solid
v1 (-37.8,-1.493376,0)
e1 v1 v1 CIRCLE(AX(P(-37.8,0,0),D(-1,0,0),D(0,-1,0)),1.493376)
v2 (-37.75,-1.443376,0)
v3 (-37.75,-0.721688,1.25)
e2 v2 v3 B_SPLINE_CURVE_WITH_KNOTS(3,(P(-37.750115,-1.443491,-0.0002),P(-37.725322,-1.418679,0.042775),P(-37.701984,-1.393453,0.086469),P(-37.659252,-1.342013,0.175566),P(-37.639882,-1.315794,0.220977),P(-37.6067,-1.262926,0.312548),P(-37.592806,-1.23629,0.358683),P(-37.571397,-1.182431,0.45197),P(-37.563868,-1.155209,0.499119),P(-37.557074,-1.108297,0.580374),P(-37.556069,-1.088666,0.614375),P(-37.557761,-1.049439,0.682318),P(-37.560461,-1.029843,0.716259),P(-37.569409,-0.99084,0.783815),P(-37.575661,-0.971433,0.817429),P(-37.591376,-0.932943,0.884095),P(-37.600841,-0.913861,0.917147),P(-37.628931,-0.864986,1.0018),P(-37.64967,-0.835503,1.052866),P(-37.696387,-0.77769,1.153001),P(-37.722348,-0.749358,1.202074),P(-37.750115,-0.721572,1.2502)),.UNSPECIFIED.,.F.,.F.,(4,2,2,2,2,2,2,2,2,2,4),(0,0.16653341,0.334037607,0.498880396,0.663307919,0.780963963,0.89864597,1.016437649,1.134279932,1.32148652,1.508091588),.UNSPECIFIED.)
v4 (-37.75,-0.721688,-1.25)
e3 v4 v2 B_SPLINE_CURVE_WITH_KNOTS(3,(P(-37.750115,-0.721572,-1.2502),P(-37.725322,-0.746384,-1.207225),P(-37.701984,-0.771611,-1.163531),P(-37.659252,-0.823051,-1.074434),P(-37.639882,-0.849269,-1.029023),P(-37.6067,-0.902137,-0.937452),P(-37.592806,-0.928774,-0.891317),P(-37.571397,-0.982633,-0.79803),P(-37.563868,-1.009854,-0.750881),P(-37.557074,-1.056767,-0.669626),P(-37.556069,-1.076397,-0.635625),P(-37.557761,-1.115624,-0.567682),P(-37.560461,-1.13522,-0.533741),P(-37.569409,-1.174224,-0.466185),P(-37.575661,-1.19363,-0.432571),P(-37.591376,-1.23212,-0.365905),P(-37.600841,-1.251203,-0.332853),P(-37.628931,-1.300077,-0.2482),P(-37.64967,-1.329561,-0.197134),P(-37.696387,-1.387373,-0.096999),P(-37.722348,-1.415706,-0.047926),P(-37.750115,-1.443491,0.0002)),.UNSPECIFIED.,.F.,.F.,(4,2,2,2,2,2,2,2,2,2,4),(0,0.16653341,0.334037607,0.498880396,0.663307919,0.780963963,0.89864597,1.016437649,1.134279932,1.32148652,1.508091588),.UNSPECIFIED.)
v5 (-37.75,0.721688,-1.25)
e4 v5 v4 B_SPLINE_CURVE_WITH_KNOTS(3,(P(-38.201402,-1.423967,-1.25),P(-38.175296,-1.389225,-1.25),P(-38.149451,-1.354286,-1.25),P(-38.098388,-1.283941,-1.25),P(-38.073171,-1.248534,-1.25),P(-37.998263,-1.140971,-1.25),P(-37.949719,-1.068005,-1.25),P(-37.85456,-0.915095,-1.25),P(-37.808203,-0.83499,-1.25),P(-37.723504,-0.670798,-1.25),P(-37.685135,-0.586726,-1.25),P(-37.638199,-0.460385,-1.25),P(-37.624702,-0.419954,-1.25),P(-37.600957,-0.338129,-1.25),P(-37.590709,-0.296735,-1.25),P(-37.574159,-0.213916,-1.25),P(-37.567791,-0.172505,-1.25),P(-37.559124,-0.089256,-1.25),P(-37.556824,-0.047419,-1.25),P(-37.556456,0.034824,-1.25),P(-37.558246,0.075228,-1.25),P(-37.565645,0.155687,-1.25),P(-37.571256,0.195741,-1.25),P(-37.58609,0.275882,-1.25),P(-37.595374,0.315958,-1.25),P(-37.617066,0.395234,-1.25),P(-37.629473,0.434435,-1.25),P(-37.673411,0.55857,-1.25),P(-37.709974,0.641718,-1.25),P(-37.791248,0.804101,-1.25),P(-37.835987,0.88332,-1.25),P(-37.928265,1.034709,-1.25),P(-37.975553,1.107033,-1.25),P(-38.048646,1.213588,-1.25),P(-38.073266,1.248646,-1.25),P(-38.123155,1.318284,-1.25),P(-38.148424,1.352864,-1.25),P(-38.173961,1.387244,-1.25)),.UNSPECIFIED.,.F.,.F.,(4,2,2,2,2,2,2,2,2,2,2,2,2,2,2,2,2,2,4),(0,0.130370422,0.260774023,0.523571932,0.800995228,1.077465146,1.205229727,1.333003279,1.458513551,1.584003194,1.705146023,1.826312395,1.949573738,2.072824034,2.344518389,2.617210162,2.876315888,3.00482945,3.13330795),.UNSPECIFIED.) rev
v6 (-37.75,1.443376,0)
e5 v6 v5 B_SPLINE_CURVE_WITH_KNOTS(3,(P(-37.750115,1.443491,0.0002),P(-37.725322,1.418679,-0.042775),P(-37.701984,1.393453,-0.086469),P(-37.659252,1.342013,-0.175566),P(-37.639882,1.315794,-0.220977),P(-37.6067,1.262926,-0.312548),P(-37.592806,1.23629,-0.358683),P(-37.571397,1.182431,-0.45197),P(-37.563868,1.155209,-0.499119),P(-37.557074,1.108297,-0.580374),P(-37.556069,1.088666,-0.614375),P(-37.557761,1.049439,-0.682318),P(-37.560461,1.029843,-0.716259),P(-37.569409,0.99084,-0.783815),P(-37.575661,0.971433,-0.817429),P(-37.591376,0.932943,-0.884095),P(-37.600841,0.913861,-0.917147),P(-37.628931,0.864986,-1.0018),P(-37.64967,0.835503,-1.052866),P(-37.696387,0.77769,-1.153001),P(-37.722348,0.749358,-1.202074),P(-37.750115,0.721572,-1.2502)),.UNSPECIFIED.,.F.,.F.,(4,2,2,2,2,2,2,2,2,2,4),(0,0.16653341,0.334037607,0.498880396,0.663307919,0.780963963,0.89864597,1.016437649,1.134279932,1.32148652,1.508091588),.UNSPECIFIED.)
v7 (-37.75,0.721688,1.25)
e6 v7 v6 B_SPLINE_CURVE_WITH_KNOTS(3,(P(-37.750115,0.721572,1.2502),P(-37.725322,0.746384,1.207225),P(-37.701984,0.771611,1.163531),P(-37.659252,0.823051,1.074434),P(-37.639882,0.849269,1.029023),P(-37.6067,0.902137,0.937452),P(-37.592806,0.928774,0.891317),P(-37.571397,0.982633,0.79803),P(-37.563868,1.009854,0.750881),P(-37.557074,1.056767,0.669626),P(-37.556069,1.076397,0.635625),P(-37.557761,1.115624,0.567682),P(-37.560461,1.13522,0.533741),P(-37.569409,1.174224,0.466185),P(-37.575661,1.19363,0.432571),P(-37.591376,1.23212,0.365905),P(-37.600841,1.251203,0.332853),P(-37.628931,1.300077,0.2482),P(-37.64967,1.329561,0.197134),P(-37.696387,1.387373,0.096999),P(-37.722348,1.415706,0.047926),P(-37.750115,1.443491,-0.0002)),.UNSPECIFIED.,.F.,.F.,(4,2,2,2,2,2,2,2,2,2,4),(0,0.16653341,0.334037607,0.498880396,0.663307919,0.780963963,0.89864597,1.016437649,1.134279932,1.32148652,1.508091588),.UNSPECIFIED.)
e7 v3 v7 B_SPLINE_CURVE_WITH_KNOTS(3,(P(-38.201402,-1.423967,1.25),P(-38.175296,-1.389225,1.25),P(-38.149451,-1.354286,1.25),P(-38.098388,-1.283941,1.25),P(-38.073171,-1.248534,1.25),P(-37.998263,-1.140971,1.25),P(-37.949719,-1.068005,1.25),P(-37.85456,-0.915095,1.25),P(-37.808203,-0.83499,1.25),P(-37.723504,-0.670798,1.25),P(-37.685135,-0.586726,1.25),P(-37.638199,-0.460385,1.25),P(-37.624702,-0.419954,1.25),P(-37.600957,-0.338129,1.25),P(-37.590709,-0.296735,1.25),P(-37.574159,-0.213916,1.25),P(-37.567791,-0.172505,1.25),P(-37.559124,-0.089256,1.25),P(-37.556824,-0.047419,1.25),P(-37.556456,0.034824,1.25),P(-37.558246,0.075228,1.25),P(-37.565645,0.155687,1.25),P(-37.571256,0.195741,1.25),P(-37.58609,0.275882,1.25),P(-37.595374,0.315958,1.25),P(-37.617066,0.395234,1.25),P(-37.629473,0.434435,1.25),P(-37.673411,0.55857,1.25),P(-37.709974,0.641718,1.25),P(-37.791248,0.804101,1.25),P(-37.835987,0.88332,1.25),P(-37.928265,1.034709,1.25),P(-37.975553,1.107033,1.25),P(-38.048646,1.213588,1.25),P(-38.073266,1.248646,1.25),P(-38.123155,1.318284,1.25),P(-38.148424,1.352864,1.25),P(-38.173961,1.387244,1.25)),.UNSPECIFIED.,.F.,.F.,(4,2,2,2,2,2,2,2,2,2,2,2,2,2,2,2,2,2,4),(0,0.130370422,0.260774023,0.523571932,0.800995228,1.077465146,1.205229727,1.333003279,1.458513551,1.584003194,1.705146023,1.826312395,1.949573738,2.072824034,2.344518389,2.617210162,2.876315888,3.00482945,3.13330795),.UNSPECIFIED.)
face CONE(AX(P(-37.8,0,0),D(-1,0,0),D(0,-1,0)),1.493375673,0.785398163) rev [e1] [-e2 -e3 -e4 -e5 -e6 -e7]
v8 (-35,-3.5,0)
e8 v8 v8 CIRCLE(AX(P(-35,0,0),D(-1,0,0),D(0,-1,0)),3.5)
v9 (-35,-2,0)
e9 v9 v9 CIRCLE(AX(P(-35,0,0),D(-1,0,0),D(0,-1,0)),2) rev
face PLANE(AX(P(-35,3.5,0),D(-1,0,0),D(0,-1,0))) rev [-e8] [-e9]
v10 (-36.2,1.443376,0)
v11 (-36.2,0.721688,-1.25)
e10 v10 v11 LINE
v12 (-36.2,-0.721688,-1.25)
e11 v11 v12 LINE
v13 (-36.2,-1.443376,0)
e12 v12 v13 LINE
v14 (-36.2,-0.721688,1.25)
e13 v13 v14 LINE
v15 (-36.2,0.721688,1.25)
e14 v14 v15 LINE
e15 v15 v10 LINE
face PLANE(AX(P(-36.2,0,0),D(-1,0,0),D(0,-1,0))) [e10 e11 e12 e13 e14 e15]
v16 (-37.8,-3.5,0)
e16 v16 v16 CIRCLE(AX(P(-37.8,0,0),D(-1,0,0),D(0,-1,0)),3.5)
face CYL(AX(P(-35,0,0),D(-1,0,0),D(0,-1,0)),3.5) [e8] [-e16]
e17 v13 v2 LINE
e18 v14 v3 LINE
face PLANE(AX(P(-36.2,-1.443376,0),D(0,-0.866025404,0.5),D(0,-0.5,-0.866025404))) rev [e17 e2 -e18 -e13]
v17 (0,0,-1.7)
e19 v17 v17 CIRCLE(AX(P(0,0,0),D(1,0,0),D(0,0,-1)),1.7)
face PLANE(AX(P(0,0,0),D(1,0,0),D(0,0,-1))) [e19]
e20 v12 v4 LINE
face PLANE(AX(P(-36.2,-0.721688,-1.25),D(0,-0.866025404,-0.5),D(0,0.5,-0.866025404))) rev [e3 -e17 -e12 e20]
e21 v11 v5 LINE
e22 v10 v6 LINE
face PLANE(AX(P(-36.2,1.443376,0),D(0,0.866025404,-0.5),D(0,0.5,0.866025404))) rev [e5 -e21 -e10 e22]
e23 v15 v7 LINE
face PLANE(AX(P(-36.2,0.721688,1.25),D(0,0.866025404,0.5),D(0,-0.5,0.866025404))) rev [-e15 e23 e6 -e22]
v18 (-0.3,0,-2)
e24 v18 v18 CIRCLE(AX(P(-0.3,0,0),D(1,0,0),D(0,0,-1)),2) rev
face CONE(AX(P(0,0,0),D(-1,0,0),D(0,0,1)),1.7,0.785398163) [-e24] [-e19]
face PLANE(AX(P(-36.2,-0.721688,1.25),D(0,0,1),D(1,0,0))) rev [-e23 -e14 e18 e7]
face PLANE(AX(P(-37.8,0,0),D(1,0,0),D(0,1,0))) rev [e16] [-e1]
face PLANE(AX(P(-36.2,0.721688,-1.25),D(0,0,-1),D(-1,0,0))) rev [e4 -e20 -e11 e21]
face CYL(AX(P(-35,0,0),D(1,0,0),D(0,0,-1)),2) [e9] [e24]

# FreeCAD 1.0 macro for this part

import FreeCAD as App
import Part
import Sketcher
from FreeCAD import Vector
Q = App.Units.Quantity


def edges_at(feature, points):
    """Names of the edges that pass closest to the given points."""
    edges = feature.Shape.Edges
    near = lambda p: min(range(len(edges)), key=lambda i: edges[i].distToShape(Part.Vertex(*p))[0])
    return sorted({f"Edge{near(p) + 1}" for p in points})

doc = App.newDocument("Part")
body = doc.addObject("PartDesign::Body", "Body")

# Sketch on YZ plane
sketch1 = doc.addObject("Sketcher::SketchObject", "Sketch")
body.addObject(sketch1)
sketch1.AttachmentSupport = (doc.YZ_Plane, [""])
sketch1.MapMode = "FlatFace"
sketch1.addGeometry(Part.Circle(Vector(0, 0, 0), Vector(0, 0, 1), 2), False)
sketch1.addConstraint([
    Sketcher.Constraint("Coincident", 0, 3, -1, 1),
    Sketcher.Constraint("Diameter", 0, 4.0),
])
pad1 = doc.addObject("PartDesign::Pad", "Pad")
body.addObject(pad1)
pad1.Profile = sketch1
pad1.Length = 35
pad1.Reversed = True
doc.recompute()

chamfer = doc.addObject("PartDesign::Chamfer", "Chamfer")
body.addObject(chamfer)
chamfer.Base = (pad1, edges_at(pad1, [(0, 0, 2)]))
chamfer.Size = 0.3

# Sketch on XY plane
sketch2 = doc.addObject("Sketcher::SketchObject", "Sketch001")
body.addObject(sketch2)
sketch2.AttachmentSupport = (doc.XY_Plane, [""])
sketch2.MapMode = "FlatFace"
sketch2.addGeometry([
    Part.LineSegment(Vector(-37.8, 3.5, 0), Vector(-37.8, 0, 0)),
    Part.LineSegment(Vector(-37.8, 0, 0), Vector(-35, 0, 0)),
    Part.LineSegment(Vector(-35, 0, 0), Vector(-35, 3.5, 0)),
    Part.LineSegment(Vector(-35, 3.5, 0), Vector(-37.8, 3.5, 0)),
], False)
sketch2.addConstraint([
    Sketcher.Constraint("Coincident", 0, 2, 1, 1),
    Sketcher.Constraint("Coincident", 1, 2, 2, 1),
    Sketcher.Constraint("Coincident", 2, 2, 3, 1),
    Sketcher.Constraint("Coincident", 3, 2, 0, 1),
    Sketcher.Constraint("Vertical", 0),
    Sketcher.Constraint("Horizontal", 1),
    Sketcher.Constraint("Vertical", 2),
    Sketcher.Constraint("Horizontal", 3),
    Sketcher.Constraint("PointOnObject", 0, 2, -1),
    Sketcher.Constraint("DistanceX", 1, 1, 1, 2, 2.8),
    Sketcher.Constraint("DistanceY", 0, 2, 0, 1, 3.5),
    Sketcher.Constraint("DistanceX", 1, 2, -1, 1, 35.0),
])
revolution = doc.addObject("PartDesign::Revolution", "Revolution")
body.addObject(revolution)
revolution.Profile = sketch2
revolution.ReferenceAxis = (sketch2, ["H_Axis"])
revolution.Angle = 360

# Sketch on YZ plane
sketch3 = doc.addObject("Sketcher::SketchObject", "Sketch002")
body.addObject(sketch3)
sketch3.AttachmentSupport = (doc.YZ_Plane, [""])
sketch3.MapMode = "FlatFace"
sketch3.AttachmentOffset = App.Placement(Vector(0, 0, -37.8), App.Rotation())
sketch3.addGeometry([
    Part.LineSegment(Vector(1.443376, 0, 0), Vector(0.721688, -1.25, 0)),  # 0
    Part.LineSegment(Vector(0.721688, -1.25, 0), Vector(-0.721688, -1.25, 0)),  # 1
    Part.LineSegment(Vector(-0.721688, -1.25, 0), Vector(-1.443376, 0, 0)),  # 2
    Part.LineSegment(Vector(-1.443376, 0, 0), Vector(-0.721688, 1.25, 0)),  # 3
    Part.LineSegment(Vector(-0.721688, 1.25, 0), Vector(0.721688, 1.25, 0)),  # 4
    Part.LineSegment(Vector(0.721688, 1.25, 0), Vector(1.443376, 0, 0)),  # 5
], False)
sketch3.addConstraint([
    Sketcher.Constraint("Coincident", 0, 2, 1, 1),
    Sketcher.Constraint("Coincident", 1, 2, 2, 1),
    Sketcher.Constraint("Coincident", 2, 2, 3, 1),
    Sketcher.Constraint("Coincident", 3, 2, 4, 1),
    Sketcher.Constraint("Coincident", 4, 2, 5, 1),
    Sketcher.Constraint("Coincident", 5, 2, 0, 1),
    Sketcher.Constraint("Horizontal", 1),
    Sketcher.Constraint("Horizontal", 4),
    Sketcher.Constraint("Symmetric", 0, 2, 3, 2, -1, 1),
    Sketcher.Constraint("Symmetric", 2, 2, 5, 2, -1, 1),
    Sketcher.Constraint("PointOnObject", 2, 2, -1),
    Sketcher.Constraint("Parallel", 2, 5),
    Sketcher.Constraint("Vertical", 1, 2, 3, 2),
    Sketcher.Constraint("Angle", 0, Q("-120 deg")),
    Sketcher.Constraint("DistanceY", 1, 2, 3, 2, 2.5),
    Sketcher.Constraint("DistanceX", 1, 2, 1, 1, 1.443376),
])
pocket1 = doc.addObject("PartDesign::Pocket", "Pocket")
body.addObject(pocket1)
pocket1.Profile = sketch3
pocket1.Length = 1.6
pocket1.Reversed = True

# Sketch on YZ plane
sketch4 = doc.addObject("Sketcher::SketchObject", "Sketch003")
body.addObject(sketch4)
sketch4.AttachmentSupport = (doc.YZ_Plane, [""])
sketch4.MapMode = "FlatFace"
sketch4.AttachmentOffset = App.Placement(Vector(0, 0, -37.8), App.Rotation())
sketch4.addGeometry(Part.Circle(Vector(0, 0, 0), Vector(0, 0, 1), 1.493376), False)
sketch4.addConstraint([
    Sketcher.Constraint("Coincident", 0, 3, -1, 1),
    Sketcher.Constraint("Diameter", 0, 2.986751),
])
pocket2 = doc.addObject("PartDesign::Pocket", "Pocket001")
body.addObject(pocket2)
pocket2.Profile = sketch4
pocket2.Length = 1
pocket2.Reversed = True
pocket2.TaperAngle = -45

doc.recompute()
